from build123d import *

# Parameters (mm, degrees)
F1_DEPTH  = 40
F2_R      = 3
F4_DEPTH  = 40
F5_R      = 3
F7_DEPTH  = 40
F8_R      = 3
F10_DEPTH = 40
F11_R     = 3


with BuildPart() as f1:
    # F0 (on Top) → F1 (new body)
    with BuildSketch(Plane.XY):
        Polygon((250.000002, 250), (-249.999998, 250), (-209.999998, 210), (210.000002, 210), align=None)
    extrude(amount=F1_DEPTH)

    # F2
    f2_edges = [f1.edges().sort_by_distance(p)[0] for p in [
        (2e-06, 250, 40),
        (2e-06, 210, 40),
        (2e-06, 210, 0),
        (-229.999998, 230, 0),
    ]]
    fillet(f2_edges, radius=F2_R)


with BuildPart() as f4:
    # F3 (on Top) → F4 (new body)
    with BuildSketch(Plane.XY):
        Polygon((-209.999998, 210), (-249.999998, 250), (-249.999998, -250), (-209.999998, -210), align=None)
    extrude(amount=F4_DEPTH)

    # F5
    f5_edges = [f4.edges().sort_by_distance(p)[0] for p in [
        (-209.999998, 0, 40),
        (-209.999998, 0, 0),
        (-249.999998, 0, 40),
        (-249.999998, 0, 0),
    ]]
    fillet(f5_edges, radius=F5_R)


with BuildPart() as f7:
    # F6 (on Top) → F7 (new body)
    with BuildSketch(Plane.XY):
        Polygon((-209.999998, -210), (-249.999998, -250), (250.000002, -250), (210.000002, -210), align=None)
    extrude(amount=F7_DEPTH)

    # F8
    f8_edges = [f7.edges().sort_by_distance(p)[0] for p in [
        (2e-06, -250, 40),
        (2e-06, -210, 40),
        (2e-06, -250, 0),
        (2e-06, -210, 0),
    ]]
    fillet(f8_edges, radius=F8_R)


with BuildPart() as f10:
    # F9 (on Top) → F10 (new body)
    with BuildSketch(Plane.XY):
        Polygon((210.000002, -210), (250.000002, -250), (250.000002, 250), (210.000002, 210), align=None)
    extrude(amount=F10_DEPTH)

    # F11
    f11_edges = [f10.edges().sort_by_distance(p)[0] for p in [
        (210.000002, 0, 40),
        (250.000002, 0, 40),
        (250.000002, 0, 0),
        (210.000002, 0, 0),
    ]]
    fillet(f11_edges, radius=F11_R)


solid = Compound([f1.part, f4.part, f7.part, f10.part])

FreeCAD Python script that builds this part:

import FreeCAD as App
import Part
import Sketcher


def edges_at(feature, points):
    """Names of the edges that pass closest to the given points."""
    edges = feature.Shape.Edges
    near = lambda p: min(range(len(edges)), key=lambda i: edges[i].distToShape(Part.Vertex(*p))[0])
    return sorted({f"Edge{near(p) + 1}" for p in points})


def add_polygon(sketch, points):
    """Adds a closed chain of lines whose ends are joined by coincident constraints."""
    first, n = sketch.GeometryCount, len(points)
    for a, b in zip(points, points[1:] + points[:1]):
        sketch.addGeometry(Part.LineSegment(App.Vector(*a, 0), App.Vector(*b, 0)), False)
    for i in range(n):
        sketch.addConstraint(Sketcher.Constraint("Coincident", first + i, 2, first + (i + 1) % n, 1))

doc = App.newDocument("Part")
body = doc.addObject("PartDesign::Body", "Body")

sketch1 = doc.addObject("Sketcher::SketchObject", "Sketch")
body.addObject(sketch1)
sketch1.AttachmentSupport = (doc.XY_Plane, [""])
sketch1.MapMode = "FlatFace"
add_polygon(sketch1, [(250.000002, 250), (-249.999998, 250), (-209.999998, 210), (210.000002, 210)])
sketch1.addConstraint(Sketcher.Constraint("Horizontal", 0))
sketch1.addConstraint(Sketcher.Constraint("Horizontal", 2))
sketch1.addConstraint(Sketcher.Constraint("Perpendicular", 1, 3))
sketch1.addConstraint(Sketcher.Constraint("Equal", 1, 3))
sketch1.addConstraint(Sketcher.Constraint("DistanceX", 0, 2, 0, 1, 500.0))
sketch1.addConstraint(Sketcher.Constraint("DistanceX", 2, 1, 2, 2, 420.0))
sketch1.addConstraint(Sketcher.Constraint("DistanceX", 0, 2, -1, 1, 249.999998))
sketch1.addConstraint(Sketcher.Constraint("DistanceY", -1, 1, 0, 2, 250.0))
pad1 = doc.addObject("PartDesign::Pad", "Pad")
body.addObject(pad1)
pad1.Profile = sketch1
pad1.Length = 40
doc.recompute()

fillet = doc.addObject("PartDesign::Fillet", "Fillet")
body.addObject(fillet)
fillet.Base = (pad1, edges_at(pad1, [
    (0, 250, 40),
    (0, 210, 40),
    (0, 210, 0),
    (-230, 230, 0),
]))
fillet.Radius = 3
body2 = doc.addObject("PartDesign::Body", "Body001")

sketch2 = doc.addObject("Sketcher::SketchObject", "Sketch001")
body2.addObject(sketch2)
sketch2.AttachmentSupport = (doc.getObject("XY_Plane001"), [""])
sketch2.MapMode = "FlatFace"
add_polygon(sketch2, [(-209.999998, 210), (-249.999998, 250), (-249.999998, -250), (-209.999998, -210)])
sketch2.addConstraint(Sketcher.Constraint("Vertical", 1))
sketch2.addConstraint(Sketcher.Constraint("Vertical", 3))
sketch2.addConstraint(Sketcher.Constraint("Perpendicular", 0, 2))
sketch2.addConstraint(Sketcher.Constraint("Equal", 0, 2))
sketch2.addConstraint(Sketcher.Constraint("DistanceY", 1, 2, 1, 1, 500.0))
sketch2.addConstraint(Sketcher.Constraint("DistanceY", 3, 1, 3, 2, 420.0))
sketch2.addConstraint(Sketcher.Constraint("DistanceX", 0, 2, -1, 1, 249.999998))
sketch2.addConstraint(Sketcher.Constraint("DistanceY", -1, 1, 0, 2, 250.0))
pad2 = doc.addObject("PartDesign::Pad", "Pad001")
body2.addObject(pad2)
pad2.Profile = sketch2
pad2.Length = 40
doc.recompute()

fillet2 = doc.addObject("PartDesign::Fillet", "Fillet001")
body2.addObject(fillet2)
fillet2.Base = (pad2, edges_at(pad2, [
    (-210, 0, 40),
    (-210, 0, 0),
    (-250, 0, 40),
    (-250, 0, 0),
]))
fillet2.Radius = 3
body3 = doc.addObject("PartDesign::Body", "Body002")

sketch3 = doc.addObject("Sketcher::SketchObject", "Sketch002")
body3.addObject(sketch3)
sketch3.AttachmentSupport = (doc.getObject("XY_Plane002"), [""])
sketch3.MapMode = "FlatFace"
add_polygon(sketch3, [(-209.999998, -210), (-249.999998, -250), (250.000002, -250), (210.000002, -210)])
sketch3.addConstraint(Sketcher.Constraint("Horizontal", 1))
sketch3.addConstraint(Sketcher.Constraint("Horizontal", 3))
sketch3.addConstraint(Sketcher.Constraint("Perpendicular", 0, 2))
sketch3.addConstraint(Sketcher.Constraint("Equal", 0, 2))
sketch3.addConstraint(Sketcher.Constraint("DistanceX", 1, 1, 1, 2, 500.0))
sketch3.addConstraint(Sketcher.Constraint("DistanceX", 3, 2, 3, 1, 420.0))
sketch3.addConstraint(Sketcher.Constraint("DistanceX", 0, 2, -1, 1, 249.999998))
sketch3.addConstraint(Sketcher.Constraint("DistanceY", 0, 2, -1, 1, 250.0))
pad3 = doc.addObject("PartDesign::Pad", "Pad002")
body3.addObject(pad3)
pad3.Profile = sketch3
pad3.Length = 40
doc.recompute()

fillet3 = doc.addObject("PartDesign::Fillet", "Fillet002")
body3.addObject(fillet3)
fillet3.Base = (pad3, edges_at(pad3, [
    (0, -250, 40),
    (0, -210, 40),
    (0, -250, 0),
    (0, -210, 0),
]))
fillet3.Radius = 3
body4 = doc.addObject("PartDesign::Body", "Body003")

sketch4 = doc.addObject("Sketcher::SketchObject", "Sketch003")
body4.addObject(sketch4)
sketch4.AttachmentSupport = (doc.getObject("XY_Plane003"), [""])
sketch4.MapMode = "FlatFace"
add_polygon(sketch4, [(210.000002, -210), (250.000002, -250), (250.000002, 250), (210.000002, 210)])
sketch4.addConstraint(Sketcher.Constraint("Vertical", 1))
sketch4.addConstraint(Sketcher.Constraint("Vertical", 3))
sketch4.addConstraint(Sketcher.Constraint("Perpendicular", 0, 2))
sketch4.addConstraint(Sketcher.Constraint("Equal", 0, 2))
sketch4.addConstraint(Sketcher.Constraint("DistanceY", 1, 1, 1, 2, 500.0))
sketch4.addConstraint(Sketcher.Constraint("DistanceY", 3, 2, 3, 1, 420.0))
sketch4.addConstraint(Sketcher.Constraint("DistanceX", -1, 1, 0, 2, 250.000002))
sketch4.addConstraint(Sketcher.Constraint("DistanceY", 0, 2, -1, 1, 250.0))
pad4 = doc.addObject("PartDesign::Pad", "Pad003")
body4.addObject(pad4)
pad4.Profile = sketch4
pad4.Length = 40
doc.recompute()

fillet4 = doc.addObject("PartDesign::Fillet", "Fillet003")
body4.addObject(fillet4)
fillet4.Base = (pad4, edges_at(pad4, [
    (210, 0, 40),
    (250, 0, 40),
    (250, 0, 0),
    (210, 0, 0),
]))
fillet4.Radius = 3

doc.recompute()
